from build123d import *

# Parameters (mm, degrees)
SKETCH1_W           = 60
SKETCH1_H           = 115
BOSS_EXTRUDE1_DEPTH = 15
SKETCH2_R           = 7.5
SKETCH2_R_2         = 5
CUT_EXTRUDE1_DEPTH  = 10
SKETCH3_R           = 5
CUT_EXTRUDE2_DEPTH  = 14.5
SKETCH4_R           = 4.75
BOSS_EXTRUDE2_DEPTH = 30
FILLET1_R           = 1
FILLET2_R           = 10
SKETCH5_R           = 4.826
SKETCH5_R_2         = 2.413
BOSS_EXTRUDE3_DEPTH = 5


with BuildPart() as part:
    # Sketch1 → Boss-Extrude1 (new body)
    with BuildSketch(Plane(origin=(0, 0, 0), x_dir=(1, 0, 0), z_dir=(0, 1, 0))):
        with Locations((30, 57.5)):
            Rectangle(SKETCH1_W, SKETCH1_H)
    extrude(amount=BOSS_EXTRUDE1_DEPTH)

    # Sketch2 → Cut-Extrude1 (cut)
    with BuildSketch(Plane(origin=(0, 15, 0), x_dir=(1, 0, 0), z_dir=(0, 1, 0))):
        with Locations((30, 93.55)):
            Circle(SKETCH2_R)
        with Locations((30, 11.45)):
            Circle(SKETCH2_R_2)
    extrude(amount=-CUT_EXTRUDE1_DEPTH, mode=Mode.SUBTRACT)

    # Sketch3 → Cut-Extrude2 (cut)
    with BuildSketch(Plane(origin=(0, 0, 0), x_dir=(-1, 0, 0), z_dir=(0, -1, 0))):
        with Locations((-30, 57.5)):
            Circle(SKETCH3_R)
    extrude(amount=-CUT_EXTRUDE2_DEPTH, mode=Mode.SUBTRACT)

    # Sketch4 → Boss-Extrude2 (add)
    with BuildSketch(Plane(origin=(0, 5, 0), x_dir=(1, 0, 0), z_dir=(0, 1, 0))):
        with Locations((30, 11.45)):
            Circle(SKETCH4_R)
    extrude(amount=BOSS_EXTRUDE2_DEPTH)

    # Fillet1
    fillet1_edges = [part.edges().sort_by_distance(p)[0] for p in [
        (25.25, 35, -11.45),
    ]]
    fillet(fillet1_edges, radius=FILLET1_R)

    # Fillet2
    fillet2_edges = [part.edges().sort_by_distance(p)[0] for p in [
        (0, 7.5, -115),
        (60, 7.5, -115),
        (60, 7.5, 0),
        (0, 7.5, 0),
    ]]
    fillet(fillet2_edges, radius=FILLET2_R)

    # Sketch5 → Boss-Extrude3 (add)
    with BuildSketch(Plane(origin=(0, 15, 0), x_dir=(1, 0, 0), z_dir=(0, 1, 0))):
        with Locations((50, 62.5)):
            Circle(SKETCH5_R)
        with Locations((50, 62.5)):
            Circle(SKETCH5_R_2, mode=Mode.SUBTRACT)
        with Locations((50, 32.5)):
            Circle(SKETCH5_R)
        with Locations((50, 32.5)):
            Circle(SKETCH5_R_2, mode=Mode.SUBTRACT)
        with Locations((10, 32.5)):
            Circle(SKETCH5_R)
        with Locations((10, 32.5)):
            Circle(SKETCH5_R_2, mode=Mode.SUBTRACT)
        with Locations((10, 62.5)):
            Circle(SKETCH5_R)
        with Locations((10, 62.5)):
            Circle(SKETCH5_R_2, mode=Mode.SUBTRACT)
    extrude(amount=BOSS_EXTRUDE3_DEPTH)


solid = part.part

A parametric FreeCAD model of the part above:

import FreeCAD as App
import Part
import Sketcher


def edges_at(feature, points):
    """Names of the edges that pass closest to the given points."""
    edges = feature.Shape.Edges
    near = lambda p: min(range(len(edges)), key=lambda i: edges[i].distToShape(Part.Vertex(*p))[0])
    return sorted({f"Edge{near(p) + 1}" for p in points})


def add_polygon(sketch, points):
    """Adds a closed chain of lines whose ends are joined by coincident constraints."""
    first, n = sketch.GeometryCount, len(points)
    for a, b in zip(points, points[1:] + points[:1]):
        sketch.addGeometry(Part.LineSegment(App.Vector(*a, 0), App.Vector(*b, 0)), False)
    for i in range(n):
        sketch.addConstraint(Sketcher.Constraint("Coincident", first + i, 2, first + (i + 1) % n, 1))

doc = App.newDocument("Part")
body = doc.addObject("PartDesign::Body", "Body")

# Sketch on XZ plane
sketch1 = body.newObject("Sketcher::SketchObject", "Sketch")
sketch1.AttachmentSupport = (doc.getObject("XZ_Plane"), [""])
sketch1.MapMode = "FlatFace"
add_polygon(sketch1, [(0, -115), (0, 0), (60, 0), (60, -115)])  # lines 0-3
sketch1.addConstraint([
    Sketcher.Constraint("Vertical", 0),
    Sketcher.Constraint("Horizontal", 1),
    Sketcher.Constraint("Vertical", 2),
    Sketcher.Constraint("Horizontal", 3),
    Sketcher.Constraint("Coincident", 0, 2, -1, 1),
    Sketcher.Constraint("DistanceX", 1, 1, 1, 2, 60.0),
    Sketcher.Constraint("DistanceY", 0, 1, 0, 2, 115.0),
])
pad1 = body.newObject("PartDesign::Pad", "Pad")
pad1.Profile = sketch1
pad1.Length = 15
pad1.Reversed = True

# Sketch on XZ plane
sketch2 = body.newObject("Sketcher::SketchObject", "Sketch001")
sketch2.AttachmentSupport = (doc.getObject("XZ_Plane"), [""])
sketch2.MapMode = "FlatFace"
sketch2.AttachmentOffset = App.Placement(App.Vector(0, 0, -15), App.Rotation())
sketch2.addGeometry([
    Part.Circle(App.Vector(30, -94, 0), App.Vector(0, 0, 1), 8),
    Part.Circle(App.Vector(30, -11, 0), App.Vector(0, 0, 1), 5),
], False)
sketch2.addConstraint([
    Sketcher.Constraint("Vertical", 0, 3, 1, 3),
    Sketcher.Constraint("Diameter", 0, 15.0),
    Sketcher.Constraint("Diameter", 1, 10.0),
    Sketcher.Constraint("DistanceX", -1, 1, 0, 3, 30.0),
    Sketcher.Constraint("DistanceY", 0, 3, 1, 3, 82.1),
    Sketcher.Constraint("DistanceY", 0, 3, -1, 1, 93.55),
])
pocket1 = body.newObject("PartDesign::Pocket", "Pocket")
pocket1.Profile = sketch2
pocket1.Length = 10
pocket1.Reversed = True

# Sketch on XZ plane
sketch3 = body.newObject("Sketcher::SketchObject", "Sketch002")
sketch3.AttachmentSupport = (doc.getObject("XZ_Plane"), [""])
sketch3.MapMode = "FlatFace"
sketch3.addGeometry(Part.Circle(App.Vector(30, -58, 0), App.Vector(0, 0, 1), 5), False)
sketch3.addConstraint([
    Sketcher.Constraint("Diameter", 0, 10.0),
    Sketcher.Constraint("DistanceX", -1, 1, 0, 3, 30.0),
    Sketcher.Constraint("DistanceY", 0, 3, -1, 1, 57.5),
])
pocket2 = body.newObject("PartDesign::Pocket", "Pocket001")
pocket2.Profile = sketch3
pocket2.Length = 14.5

# Sketch on XZ plane
sketch4 = body.newObject("Sketcher::SketchObject", "Sketch003")
sketch4.AttachmentSupport = (doc.getObject("XZ_Plane"), [""])
sketch4.MapMode = "FlatFace"
sketch4.AttachmentOffset = App.Placement(App.Vector(0, 0, -5), App.Rotation())
sketch4.addGeometry(Part.Circle(App.Vector(30, -11.4, 0), App.Vector(0, 0, 1), 4.8), False)
sketch4.addConstraint([
    Sketcher.Constraint("Diameter", 0, 9.5),
    Sketcher.Constraint("DistanceX", -1, 1, 0, 3, 30.0),
    Sketcher.Constraint("DistanceY", 0, 3, -1, 1, 11.45),
])
pad2 = body.newObject("PartDesign::Pad", "Pad001")
pad2.Profile = sketch4
pad2.Length = 30
pad2.Reversed = True
doc.recompute()

fillet = body.newObject("PartDesign::Fillet", "Fillet")
fillet.Base = (pad2, edges_at(pad2, [(25.25, 35, -11.45)]))
fillet.Radius = 1
doc.recompute()

fillet2 = body.newObject("PartDesign::Fillet", "Fillet001")
fillet2.Base = (fillet, edges_at(fillet, [
    (0, 7.5, -115),
    (60, 7.5, -115),
    (60, 7.5, 0),
    (0, 7.5, 0),
]))
fillet2.Radius = 10

# Sketch on XZ plane
sketch5 = body.newObject("Sketcher::SketchObject", "Sketch004")
sketch5.AttachmentSupport = (doc.getObject("XZ_Plane"), [""])
sketch5.MapMode = "FlatFace"
sketch5.AttachmentOffset = App.Placement(App.Vector(0, 0, -15), App.Rotation())
sketch5.addGeometry([
    Part.Circle(App.Vector(50, -62.5, 0), App.Vector(0, 0, 1), 4.8),  # 0
    Part.Circle(App.Vector(50, -62.5, 0), App.Vector(0, 0, 1), 2.4),  # 1
    Part.Circle(App.Vector(50, -32.5, 0), App.Vector(0, 0, 1), 4.8),  # 2
    Part.Circle(App.Vector(50, -32.5, 0), App.Vector(0, 0, 1), 2.4),  # 3
    Part.Circle(App.Vector(10, -32.5, 0), App.Vector(0, 0, 1), 4.8),  # 4
    Part.Circle(App.Vector(10, -32.5, 0), App.Vector(0, 0, 1), 2.4),  # 5
    Part.Circle(App.Vector(10, -62.5, 0), App.Vector(0, 0, 1), 4.8),  # 6
    Part.Circle(App.Vector(10, -62.5, 0), App.Vector(0, 0, 1), 2.4),  # 7
], False)
sketch5.addConstraint([
    Sketcher.Constraint("Coincident", 1, 3, 0, 3),
    Sketcher.Constraint("Coincident", 3, 3, 2, 3),
    Sketcher.Constraint("Coincident", 5, 3, 4, 3),
    Sketcher.Constraint("Coincident", 7, 3, 6, 3),
    Sketcher.Constraint("Equal", 0, 2),
    Sketcher.Constraint("Equal", 1, 3),
    Sketcher.Constraint("Equal", 2, 4),
    Sketcher.Constraint("Equal", 3, 5),
    Sketcher.Constraint("Equal", 4, 6),
    Sketcher.Constraint("Equal", 5, 7),
    Sketcher.Constraint("Horizontal", 3, 3, 4, 3),
    Sketcher.Constraint("Horizontal", 1, 3, 6, 3),
    Sketcher.Constraint("Vertical", 1, 3, 2, 3),
    Sketcher.Constraint("Vertical", 5, 3, 6, 3),
    Sketcher.Constraint("Diameter", 0, 9.652),
    Sketcher.Constraint("Diameter", 1, 4.826),
    Sketcher.Constraint("DistanceX", -1, 1, 0, 3, 50.0),
    Sketcher.Constraint("DistanceX", -1, 1, 4, 3, 10.0),
    Sketcher.Constraint("DistanceY", 0, 3, 2, 3, 30.0),
    Sketcher.Constraint("DistanceY", 0, 3, -1, 1, 62.5),
])
pad3 = body.newObject("PartDesign::Pad", "Pad002")
pad3.Profile = sketch5
pad3.Length = 5
pad3.Reversed = True

doc.recompute()
